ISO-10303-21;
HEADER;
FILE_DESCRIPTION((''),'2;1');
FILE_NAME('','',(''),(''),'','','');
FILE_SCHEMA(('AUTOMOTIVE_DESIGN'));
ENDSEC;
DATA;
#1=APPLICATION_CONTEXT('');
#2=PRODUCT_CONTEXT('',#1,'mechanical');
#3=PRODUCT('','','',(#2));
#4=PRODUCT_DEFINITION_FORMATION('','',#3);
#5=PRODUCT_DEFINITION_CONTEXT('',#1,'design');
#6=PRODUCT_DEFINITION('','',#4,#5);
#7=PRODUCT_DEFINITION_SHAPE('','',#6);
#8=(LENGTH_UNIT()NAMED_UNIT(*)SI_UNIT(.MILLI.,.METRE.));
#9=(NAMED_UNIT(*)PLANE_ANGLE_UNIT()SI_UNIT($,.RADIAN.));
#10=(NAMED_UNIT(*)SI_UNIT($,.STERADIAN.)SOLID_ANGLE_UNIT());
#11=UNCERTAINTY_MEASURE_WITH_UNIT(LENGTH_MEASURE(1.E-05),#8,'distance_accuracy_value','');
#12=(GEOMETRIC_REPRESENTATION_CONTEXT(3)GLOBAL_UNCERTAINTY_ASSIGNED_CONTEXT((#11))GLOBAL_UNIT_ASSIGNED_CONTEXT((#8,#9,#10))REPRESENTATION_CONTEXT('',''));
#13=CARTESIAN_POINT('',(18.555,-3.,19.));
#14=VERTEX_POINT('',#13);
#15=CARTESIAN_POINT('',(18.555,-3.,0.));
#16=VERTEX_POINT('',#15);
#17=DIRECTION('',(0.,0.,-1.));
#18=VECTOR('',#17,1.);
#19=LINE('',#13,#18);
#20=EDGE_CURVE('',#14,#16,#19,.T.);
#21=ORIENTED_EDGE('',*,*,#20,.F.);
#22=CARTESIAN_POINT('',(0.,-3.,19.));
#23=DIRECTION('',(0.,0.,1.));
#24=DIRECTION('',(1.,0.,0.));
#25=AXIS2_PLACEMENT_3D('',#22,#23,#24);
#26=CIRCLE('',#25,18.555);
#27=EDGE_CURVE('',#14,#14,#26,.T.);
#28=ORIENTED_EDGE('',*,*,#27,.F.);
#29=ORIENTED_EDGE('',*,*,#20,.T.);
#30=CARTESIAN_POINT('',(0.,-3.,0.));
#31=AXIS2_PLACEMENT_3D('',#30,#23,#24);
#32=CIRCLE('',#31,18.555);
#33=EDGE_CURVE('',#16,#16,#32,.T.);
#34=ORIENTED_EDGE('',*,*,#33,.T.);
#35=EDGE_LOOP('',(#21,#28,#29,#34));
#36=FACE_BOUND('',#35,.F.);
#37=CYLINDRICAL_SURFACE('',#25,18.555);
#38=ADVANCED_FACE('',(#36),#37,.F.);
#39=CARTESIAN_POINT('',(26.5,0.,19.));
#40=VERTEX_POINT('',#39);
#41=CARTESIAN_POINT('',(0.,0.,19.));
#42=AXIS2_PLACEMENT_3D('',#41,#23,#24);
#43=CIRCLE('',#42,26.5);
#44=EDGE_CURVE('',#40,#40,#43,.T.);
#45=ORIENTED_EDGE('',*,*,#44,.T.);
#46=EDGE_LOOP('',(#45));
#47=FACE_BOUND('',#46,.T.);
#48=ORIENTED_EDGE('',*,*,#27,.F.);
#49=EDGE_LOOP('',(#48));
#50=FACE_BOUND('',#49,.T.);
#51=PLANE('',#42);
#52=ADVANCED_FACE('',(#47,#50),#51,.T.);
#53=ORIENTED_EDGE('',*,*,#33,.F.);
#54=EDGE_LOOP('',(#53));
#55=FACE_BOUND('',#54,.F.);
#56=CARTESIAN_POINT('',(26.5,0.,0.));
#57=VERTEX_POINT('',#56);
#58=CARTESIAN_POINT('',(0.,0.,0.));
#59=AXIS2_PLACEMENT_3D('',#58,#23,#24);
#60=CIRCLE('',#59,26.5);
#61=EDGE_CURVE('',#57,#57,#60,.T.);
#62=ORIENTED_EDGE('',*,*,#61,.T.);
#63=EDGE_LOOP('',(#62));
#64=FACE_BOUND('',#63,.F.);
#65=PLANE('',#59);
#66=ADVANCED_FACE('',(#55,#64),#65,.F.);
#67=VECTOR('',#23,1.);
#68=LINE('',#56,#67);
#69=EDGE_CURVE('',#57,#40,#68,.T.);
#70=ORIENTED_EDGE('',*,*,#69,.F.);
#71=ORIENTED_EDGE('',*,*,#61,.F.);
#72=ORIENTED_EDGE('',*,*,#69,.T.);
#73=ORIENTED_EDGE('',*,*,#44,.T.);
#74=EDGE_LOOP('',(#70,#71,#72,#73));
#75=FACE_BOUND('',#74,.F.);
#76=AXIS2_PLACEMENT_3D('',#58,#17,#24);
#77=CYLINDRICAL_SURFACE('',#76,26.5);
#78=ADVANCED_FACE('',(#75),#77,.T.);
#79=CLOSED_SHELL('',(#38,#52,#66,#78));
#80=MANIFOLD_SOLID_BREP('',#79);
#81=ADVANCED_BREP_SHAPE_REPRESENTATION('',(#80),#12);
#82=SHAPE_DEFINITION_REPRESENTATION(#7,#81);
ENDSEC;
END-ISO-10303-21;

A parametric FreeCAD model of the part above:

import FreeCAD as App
import Part
import Sketcher
from FreeCAD import Vector

doc = App.newDocument("Part")
body = doc.addObject("PartDesign::Body", "Body")

# Sketch on XY plane
sketch1 = body.newObject("Sketcher::SketchObject", "Sketch")
sketch1.AttachmentSupport = (doc.getObject("XY_Plane"), [""])
sketch1.MapMode = "FlatFace"
sketch1.addGeometry(Part.Circle(Vector(0, 0, 0), Vector(0, 0, 1), 26), False)
sketch1.addConstraint(Sketcher.Constraint("Coincident", 0, 3, -1, 1))
sketch1.addConstraint(Sketcher.Constraint("Diameter", 0, 53.0))
pad1 = body.newObject("PartDesign::Pad", "Pad")
pad1.Profile = sketch1
pad1.Length = 19

# Sketch on XY plane
sketch2 = body.newObject("Sketcher::SketchObject", "Sketch001")
sketch2.AttachmentSupport = (doc.getObject("XY_Plane"), [""])
sketch2.MapMode = "FlatFace"
sketch2.AttachmentOffset = App.Placement(Vector(0, 0, 19), App.Rotation())
sketch2.addGeometry(Part.Circle(Vector(0, -3, 0), Vector(0, 0, 1), 19), False)
sketch2.addConstraint(Sketcher.Constraint("PointOnObject", 0, 3, -2))
sketch2.addConstraint(Sketcher.Constraint("Diameter", 0, 37.11))
sketch2.addConstraint(Sketcher.Constraint("DistanceY", 0, 3, -1, 1, 3.0))
pocket1 = body.newObject("PartDesign::Pocket", "Pocket")
pocket1.Profile = sketch2
pocket1.Type = "ThroughAll"

doc.recompute()
